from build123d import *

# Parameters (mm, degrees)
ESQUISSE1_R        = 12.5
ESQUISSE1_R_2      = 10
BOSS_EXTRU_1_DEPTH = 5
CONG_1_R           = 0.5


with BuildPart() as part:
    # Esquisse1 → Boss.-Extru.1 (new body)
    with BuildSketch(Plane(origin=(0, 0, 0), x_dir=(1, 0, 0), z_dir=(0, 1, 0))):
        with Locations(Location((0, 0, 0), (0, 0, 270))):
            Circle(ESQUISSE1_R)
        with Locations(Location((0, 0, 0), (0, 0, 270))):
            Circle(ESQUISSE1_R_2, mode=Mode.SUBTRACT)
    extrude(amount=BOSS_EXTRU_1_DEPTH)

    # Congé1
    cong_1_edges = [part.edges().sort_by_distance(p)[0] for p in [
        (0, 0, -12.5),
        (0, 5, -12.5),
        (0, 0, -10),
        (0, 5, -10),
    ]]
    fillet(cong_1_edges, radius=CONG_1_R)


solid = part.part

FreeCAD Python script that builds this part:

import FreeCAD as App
import Part
import Sketcher

V = App.Vector


def edges_at(feature, points):
    """Names of the edges that pass closest to the given points."""
    edges = feature.Shape.Edges
    near = lambda p: min(range(len(edges)), key=lambda i: edges[i].distToShape(Part.Vertex(*p))[0])
    return sorted({f"Edge{near(p) + 1}" for p in points})

doc = App.newDocument("Part")
body = doc.addObject("PartDesign::Body", "Body")

# Sketch on XZ plane
sketch1 = body.newObject("Sketcher::SketchObject", "Sketch")
sketch1.AttachmentSupport = (doc.getObject("XZ_Plane"), [""])
sketch1.MapMode = "FlatFace"
sketch1.addGeometry(Part.Circle(V(0, 0, 0), V(0, 0, 1), 12), False)
sketch1.addGeometry(Part.Circle(V(0, 0, 0), V(0, 0, 1), 10), False)
sketch1.addConstraint(Sketcher.Constraint("Coincident", 0, 3, -1, 1))
sketch1.addConstraint(Sketcher.Constraint("Coincident", 1, 3, -1, 1))
sketch1.addConstraint(Sketcher.Constraint("Diameter", 0, 25.0))
sketch1.addConstraint(Sketcher.Constraint("Diameter", 1, 20.0))
pad1 = body.newObject("PartDesign::Pad", "Pad")
pad1.Profile = sketch1
pad1.Length = 5
pad1.Reversed = True
doc.recompute()

fillet = body.newObject("PartDesign::Fillet", "Fillet")
fillet.Base = (pad1, edges_at(pad1, [
    (0, 0, -12.5),
    (0, 5, -12.5),
    (0, 0, -10),
    (0, 5, -10),
]))
fillet.Radius = 0.5

doc.recompute()
